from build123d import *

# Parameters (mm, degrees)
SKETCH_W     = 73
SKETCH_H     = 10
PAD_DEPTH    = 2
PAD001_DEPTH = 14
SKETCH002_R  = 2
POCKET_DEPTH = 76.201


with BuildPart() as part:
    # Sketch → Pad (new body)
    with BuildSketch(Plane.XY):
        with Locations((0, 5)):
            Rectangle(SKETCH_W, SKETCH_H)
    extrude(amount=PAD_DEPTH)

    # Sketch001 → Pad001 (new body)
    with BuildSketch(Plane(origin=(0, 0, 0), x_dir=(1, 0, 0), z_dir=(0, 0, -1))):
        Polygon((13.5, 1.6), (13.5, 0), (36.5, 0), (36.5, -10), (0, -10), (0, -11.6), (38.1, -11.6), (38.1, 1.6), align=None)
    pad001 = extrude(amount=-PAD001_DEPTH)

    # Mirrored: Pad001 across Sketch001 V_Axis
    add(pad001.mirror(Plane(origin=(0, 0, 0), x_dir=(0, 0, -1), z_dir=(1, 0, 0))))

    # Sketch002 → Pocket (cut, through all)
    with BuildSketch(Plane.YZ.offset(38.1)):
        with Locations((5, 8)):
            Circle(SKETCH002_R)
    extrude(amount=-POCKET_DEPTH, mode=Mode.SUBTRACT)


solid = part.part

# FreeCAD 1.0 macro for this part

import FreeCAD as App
import Part
import Sketcher
from FreeCAD import Vector
Q = App.Units.Quantity


def add_polygon(sketch, points):
    """Adds a closed chain of lines whose ends are joined by coincident constraints."""
    first, n = sketch.GeometryCount, len(points)
    for a, b in zip(points, points[1:] + points[:1]):
        sketch.addGeometry(Part.LineSegment(App.Vector(*a, 0), App.Vector(*b, 0)), False)
    for i in range(n):
        sketch.addConstraint(Sketcher.Constraint("Coincident", first + i, 2, first + (i + 1) % n, 1))

doc = App.newDocument("Part")
body = doc.addObject("PartDesign::Body", "Body")

# Sketch on XY plane
sketch1 = body.newObject("Sketcher::SketchObject", "Sketch")
sketch1.AttachmentSupport = (doc.getObject("XY_Plane"), [""])
sketch1.MapMode = "FlatFace"
add_polygon(sketch1, [(-36, 10), (-36, 0), (36, 0), (36, 10)])  # lines 0-3
sketch1.addConstraint([
    Sketcher.Constraint("Vertical", 0),
    Sketcher.Constraint("Horizontal", 1),
    Sketcher.Constraint("Vertical", 2),
    Sketcher.Constraint("Horizontal", 3),
    Sketcher.Constraint("Symmetric", 0, 2, 1, 2, -1, 1),
    Sketcher.Constraint("DistanceX", 1, 1, 1, 2, Q("73 mm")),
    Sketcher.Constraint("DistanceY", 0, 2, 0, 1, Q("10 mm")),
])
pad1 = body.newObject("PartDesign::Pad", "Pad")
pad1.Profile = sketch1
pad1.Length = 2

# Sketch on XY plane
sketch2 = body.newObject("Sketcher::SketchObject", "Sketch001")
sketch2.AttachmentSupport = (doc.getObject("XY_Plane"), [""])
sketch2.MapMode = "FlatFace"
add_polygon(sketch2, [(13.5, -1.6), (13.5, 0), (36.5, 0), (36.5, 10), (0, 10), (0, 11.6), (38.1, 11.6), (38.1, -1.6)])  # lines 0-7
sketch2.addConstraint([
    Sketcher.Constraint("Vertical", 0),
    Sketcher.Constraint("Horizontal", 1),
    Sketcher.Constraint("Vertical", 2),
    Sketcher.Constraint("Horizontal", 3),
    Sketcher.Constraint("Vertical", 4),
    Sketcher.Constraint("Horizontal", 5),
    Sketcher.Constraint("Vertical", 6),
    Sketcher.Constraint("Horizontal", 7),
    Sketcher.Constraint("PointOnObject", 0, 2, -1),
    Sketcher.Constraint("PointOnObject", 3, 2, -2),
    Sketcher.Constraint("Equal", 0, 4),
    Sketcher.Constraint("DistanceX", 1, 1, 1, 2, Q("23 mm")),
    Sketcher.Constraint("DistanceY", 2, 1, 2, 2, Q("10 mm")),
    Sketcher.Constraint("DistanceX", 3, 2, 3, 1, Q("36.5 mm")),
    Sketcher.Constraint("DistanceX", 5, 1, 5, 2, Q("38.1 mm")),
    Sketcher.Constraint("DistanceY", 0, 1, 0, 2, Q("1.6 mm")),
])
pad2 = body.newObject("PartDesign::Pad", "Pad001")
pad2.Profile = sketch2
pad2.Length = 14
doc.recompute()

mirrored = body.newObject("PartDesign::Mirrored", "Mirrored")
mirrored.Originals = [pad2]
mirrored.MirrorPlane = (doc.getObject("YZ_Plane"), [""])
body.Tip = mirrored

# Sketch on YZ plane
sketch3 = body.newObject("Sketcher::SketchObject", "Sketch002")
sketch3.AttachmentSupport = (doc.getObject("YZ_Plane"), [""])
sketch3.MapMode = "FlatFace"
sketch3.AttachmentOffset = App.Placement(Vector(0, 0, 38.1), App.Rotation())
sketch3.addGeometry(Part.Circle(Vector(5, 8, 0), Vector(0, 0, 1), 2), False)
sketch3.addConstraint([
    Sketcher.Constraint("Diameter", 0, Q("4 mm")),
    Sketcher.Constraint("DistanceX", -1, 1, 0, 3, Q("5 mm")),
    Sketcher.Constraint("DistanceY", -1, 1, 0, 3, Q("8 mm")),
])
pocket1 = body.newObject("PartDesign::Pocket", "Pocket")
pocket1.Profile = sketch3
pocket1.Type = "ThroughAll"

doc.recompute()
